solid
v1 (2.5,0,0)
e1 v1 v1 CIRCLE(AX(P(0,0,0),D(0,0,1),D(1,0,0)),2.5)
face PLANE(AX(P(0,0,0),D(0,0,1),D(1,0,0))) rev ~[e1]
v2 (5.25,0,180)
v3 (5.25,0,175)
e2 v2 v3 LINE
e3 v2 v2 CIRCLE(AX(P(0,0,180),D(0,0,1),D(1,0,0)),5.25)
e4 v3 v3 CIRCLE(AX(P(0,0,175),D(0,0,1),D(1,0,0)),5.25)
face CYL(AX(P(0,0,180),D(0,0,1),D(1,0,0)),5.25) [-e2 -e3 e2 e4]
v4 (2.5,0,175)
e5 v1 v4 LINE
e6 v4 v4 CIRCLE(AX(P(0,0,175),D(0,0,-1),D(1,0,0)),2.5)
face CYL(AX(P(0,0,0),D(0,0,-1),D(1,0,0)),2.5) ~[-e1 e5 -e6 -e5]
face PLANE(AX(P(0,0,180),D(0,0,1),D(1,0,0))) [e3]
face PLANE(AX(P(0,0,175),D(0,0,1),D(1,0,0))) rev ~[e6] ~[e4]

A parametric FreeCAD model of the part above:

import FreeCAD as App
import Part
import Sketcher
from FreeCAD import Vector

doc = App.newDocument("Part")
body = doc.addObject("PartDesign::Body", "Body")

# Sketch on XY plane
sketch1 = doc.addObject("Sketcher::SketchObject", "Sketch")
body.addObject(sketch1)
sketch1.AttachmentSupport = (doc.XY_Plane, [""])
sketch1.MapMode = "FlatFace"
sketch1.addGeometry(Part.Circle(Vector(0, 0, 0), Vector(0, 0, 1), 2.5), False)
sketch1.addConstraint(Sketcher.Constraint("Coincident", 0, 3, -1, 1))
sketch1.addConstraint(Sketcher.Constraint("Diameter", 0, 5.0))
pad1 = doc.addObject("PartDesign::Pad", "Pad")
body.addObject(pad1)
pad1.Profile = sketch1
pad1.Length = 180

# Sketch on XY plane
sketch2 = doc.addObject("Sketcher::SketchObject", "Sketch001")
body.addObject(sketch2)
sketch2.AttachmentSupport = (doc.XY_Plane, [""])
sketch2.MapMode = "FlatFace"
sketch2.AttachmentOffset = App.Placement(Vector(0, 0, 180), App.Rotation())
sketch2.addGeometry(Part.Circle(Vector(0, 0, 0), Vector(0, 0, 1), 5), False)
sketch2.addConstraint(Sketcher.Constraint("Coincident", 0, 3, -1, 1))
sketch2.addConstraint(Sketcher.Constraint("Diameter", 0, 10.5))
pad2 = doc.addObject("PartDesign::Pad", "Pad001")
body.addObject(pad2)
pad2.Profile = sketch2
pad2.Length = 5
pad2.Reversed = True

doc.recompute()
